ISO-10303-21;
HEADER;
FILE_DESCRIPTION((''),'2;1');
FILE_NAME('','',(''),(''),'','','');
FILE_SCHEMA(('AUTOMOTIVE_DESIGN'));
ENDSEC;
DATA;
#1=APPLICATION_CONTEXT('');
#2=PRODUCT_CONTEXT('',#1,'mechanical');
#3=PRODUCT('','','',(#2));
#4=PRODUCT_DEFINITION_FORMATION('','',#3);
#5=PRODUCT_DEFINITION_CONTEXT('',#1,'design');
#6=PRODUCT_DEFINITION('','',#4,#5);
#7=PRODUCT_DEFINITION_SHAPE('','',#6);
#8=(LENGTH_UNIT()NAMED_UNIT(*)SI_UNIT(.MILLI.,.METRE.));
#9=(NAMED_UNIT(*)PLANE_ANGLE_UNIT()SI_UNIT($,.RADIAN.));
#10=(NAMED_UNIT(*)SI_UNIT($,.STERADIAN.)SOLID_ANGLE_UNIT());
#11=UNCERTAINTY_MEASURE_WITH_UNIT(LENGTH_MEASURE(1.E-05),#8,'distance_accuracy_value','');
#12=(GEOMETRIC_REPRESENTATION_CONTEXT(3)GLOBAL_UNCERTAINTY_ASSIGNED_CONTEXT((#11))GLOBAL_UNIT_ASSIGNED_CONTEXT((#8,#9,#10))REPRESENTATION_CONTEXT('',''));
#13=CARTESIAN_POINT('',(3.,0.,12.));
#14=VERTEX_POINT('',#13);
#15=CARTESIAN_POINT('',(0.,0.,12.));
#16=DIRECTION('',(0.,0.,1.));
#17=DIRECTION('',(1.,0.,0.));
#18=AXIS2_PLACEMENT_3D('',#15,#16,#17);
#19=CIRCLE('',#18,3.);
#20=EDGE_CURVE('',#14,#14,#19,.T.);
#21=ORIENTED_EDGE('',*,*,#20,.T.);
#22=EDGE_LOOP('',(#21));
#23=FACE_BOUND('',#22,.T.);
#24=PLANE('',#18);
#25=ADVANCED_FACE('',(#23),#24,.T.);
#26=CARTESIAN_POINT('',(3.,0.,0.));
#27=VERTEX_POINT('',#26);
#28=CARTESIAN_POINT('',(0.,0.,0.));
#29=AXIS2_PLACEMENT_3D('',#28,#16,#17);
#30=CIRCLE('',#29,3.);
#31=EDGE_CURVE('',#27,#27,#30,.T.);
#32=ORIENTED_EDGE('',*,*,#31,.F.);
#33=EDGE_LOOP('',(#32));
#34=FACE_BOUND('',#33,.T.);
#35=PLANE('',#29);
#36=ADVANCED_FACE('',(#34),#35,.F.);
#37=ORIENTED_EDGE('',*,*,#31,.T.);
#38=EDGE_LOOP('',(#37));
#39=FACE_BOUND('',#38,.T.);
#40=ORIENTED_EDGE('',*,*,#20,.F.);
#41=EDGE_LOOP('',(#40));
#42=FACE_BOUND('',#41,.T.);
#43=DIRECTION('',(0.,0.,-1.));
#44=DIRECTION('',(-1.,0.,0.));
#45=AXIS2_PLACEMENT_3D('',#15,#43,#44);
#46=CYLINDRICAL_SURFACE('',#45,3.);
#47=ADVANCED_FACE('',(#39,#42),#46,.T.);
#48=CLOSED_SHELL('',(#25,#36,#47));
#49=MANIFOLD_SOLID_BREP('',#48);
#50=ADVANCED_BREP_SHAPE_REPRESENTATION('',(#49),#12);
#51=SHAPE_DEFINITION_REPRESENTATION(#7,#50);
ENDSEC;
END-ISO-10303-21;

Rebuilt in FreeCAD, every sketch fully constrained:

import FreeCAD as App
import Part
import Sketcher

doc = App.newDocument("Part")
body = doc.addObject("PartDesign::Body", "Body")

# Sketch on XY plane
sketch1 = body.newObject("Sketcher::SketchObject", "Sketch")
sketch1.AttachmentSupport = (doc.getObject("XY_Plane"), [""])
sketch1.MapMode = "FlatFace"
sketch1.addGeometry(Part.Circle(App.Vector(0, 0, 0), App.Vector(0, 0, 1), 3), False)
sketch1.addConstraint(Sketcher.Constraint("Coincident", 0, 3, -1, 1))
sketch1.addConstraint(Sketcher.Constraint("Diameter", 0, 6.0))
pad1 = body.newObject("PartDesign::Pad", "Pad")
pad1.Profile = sketch1
pad1.Length = 12

doc.recompute()
